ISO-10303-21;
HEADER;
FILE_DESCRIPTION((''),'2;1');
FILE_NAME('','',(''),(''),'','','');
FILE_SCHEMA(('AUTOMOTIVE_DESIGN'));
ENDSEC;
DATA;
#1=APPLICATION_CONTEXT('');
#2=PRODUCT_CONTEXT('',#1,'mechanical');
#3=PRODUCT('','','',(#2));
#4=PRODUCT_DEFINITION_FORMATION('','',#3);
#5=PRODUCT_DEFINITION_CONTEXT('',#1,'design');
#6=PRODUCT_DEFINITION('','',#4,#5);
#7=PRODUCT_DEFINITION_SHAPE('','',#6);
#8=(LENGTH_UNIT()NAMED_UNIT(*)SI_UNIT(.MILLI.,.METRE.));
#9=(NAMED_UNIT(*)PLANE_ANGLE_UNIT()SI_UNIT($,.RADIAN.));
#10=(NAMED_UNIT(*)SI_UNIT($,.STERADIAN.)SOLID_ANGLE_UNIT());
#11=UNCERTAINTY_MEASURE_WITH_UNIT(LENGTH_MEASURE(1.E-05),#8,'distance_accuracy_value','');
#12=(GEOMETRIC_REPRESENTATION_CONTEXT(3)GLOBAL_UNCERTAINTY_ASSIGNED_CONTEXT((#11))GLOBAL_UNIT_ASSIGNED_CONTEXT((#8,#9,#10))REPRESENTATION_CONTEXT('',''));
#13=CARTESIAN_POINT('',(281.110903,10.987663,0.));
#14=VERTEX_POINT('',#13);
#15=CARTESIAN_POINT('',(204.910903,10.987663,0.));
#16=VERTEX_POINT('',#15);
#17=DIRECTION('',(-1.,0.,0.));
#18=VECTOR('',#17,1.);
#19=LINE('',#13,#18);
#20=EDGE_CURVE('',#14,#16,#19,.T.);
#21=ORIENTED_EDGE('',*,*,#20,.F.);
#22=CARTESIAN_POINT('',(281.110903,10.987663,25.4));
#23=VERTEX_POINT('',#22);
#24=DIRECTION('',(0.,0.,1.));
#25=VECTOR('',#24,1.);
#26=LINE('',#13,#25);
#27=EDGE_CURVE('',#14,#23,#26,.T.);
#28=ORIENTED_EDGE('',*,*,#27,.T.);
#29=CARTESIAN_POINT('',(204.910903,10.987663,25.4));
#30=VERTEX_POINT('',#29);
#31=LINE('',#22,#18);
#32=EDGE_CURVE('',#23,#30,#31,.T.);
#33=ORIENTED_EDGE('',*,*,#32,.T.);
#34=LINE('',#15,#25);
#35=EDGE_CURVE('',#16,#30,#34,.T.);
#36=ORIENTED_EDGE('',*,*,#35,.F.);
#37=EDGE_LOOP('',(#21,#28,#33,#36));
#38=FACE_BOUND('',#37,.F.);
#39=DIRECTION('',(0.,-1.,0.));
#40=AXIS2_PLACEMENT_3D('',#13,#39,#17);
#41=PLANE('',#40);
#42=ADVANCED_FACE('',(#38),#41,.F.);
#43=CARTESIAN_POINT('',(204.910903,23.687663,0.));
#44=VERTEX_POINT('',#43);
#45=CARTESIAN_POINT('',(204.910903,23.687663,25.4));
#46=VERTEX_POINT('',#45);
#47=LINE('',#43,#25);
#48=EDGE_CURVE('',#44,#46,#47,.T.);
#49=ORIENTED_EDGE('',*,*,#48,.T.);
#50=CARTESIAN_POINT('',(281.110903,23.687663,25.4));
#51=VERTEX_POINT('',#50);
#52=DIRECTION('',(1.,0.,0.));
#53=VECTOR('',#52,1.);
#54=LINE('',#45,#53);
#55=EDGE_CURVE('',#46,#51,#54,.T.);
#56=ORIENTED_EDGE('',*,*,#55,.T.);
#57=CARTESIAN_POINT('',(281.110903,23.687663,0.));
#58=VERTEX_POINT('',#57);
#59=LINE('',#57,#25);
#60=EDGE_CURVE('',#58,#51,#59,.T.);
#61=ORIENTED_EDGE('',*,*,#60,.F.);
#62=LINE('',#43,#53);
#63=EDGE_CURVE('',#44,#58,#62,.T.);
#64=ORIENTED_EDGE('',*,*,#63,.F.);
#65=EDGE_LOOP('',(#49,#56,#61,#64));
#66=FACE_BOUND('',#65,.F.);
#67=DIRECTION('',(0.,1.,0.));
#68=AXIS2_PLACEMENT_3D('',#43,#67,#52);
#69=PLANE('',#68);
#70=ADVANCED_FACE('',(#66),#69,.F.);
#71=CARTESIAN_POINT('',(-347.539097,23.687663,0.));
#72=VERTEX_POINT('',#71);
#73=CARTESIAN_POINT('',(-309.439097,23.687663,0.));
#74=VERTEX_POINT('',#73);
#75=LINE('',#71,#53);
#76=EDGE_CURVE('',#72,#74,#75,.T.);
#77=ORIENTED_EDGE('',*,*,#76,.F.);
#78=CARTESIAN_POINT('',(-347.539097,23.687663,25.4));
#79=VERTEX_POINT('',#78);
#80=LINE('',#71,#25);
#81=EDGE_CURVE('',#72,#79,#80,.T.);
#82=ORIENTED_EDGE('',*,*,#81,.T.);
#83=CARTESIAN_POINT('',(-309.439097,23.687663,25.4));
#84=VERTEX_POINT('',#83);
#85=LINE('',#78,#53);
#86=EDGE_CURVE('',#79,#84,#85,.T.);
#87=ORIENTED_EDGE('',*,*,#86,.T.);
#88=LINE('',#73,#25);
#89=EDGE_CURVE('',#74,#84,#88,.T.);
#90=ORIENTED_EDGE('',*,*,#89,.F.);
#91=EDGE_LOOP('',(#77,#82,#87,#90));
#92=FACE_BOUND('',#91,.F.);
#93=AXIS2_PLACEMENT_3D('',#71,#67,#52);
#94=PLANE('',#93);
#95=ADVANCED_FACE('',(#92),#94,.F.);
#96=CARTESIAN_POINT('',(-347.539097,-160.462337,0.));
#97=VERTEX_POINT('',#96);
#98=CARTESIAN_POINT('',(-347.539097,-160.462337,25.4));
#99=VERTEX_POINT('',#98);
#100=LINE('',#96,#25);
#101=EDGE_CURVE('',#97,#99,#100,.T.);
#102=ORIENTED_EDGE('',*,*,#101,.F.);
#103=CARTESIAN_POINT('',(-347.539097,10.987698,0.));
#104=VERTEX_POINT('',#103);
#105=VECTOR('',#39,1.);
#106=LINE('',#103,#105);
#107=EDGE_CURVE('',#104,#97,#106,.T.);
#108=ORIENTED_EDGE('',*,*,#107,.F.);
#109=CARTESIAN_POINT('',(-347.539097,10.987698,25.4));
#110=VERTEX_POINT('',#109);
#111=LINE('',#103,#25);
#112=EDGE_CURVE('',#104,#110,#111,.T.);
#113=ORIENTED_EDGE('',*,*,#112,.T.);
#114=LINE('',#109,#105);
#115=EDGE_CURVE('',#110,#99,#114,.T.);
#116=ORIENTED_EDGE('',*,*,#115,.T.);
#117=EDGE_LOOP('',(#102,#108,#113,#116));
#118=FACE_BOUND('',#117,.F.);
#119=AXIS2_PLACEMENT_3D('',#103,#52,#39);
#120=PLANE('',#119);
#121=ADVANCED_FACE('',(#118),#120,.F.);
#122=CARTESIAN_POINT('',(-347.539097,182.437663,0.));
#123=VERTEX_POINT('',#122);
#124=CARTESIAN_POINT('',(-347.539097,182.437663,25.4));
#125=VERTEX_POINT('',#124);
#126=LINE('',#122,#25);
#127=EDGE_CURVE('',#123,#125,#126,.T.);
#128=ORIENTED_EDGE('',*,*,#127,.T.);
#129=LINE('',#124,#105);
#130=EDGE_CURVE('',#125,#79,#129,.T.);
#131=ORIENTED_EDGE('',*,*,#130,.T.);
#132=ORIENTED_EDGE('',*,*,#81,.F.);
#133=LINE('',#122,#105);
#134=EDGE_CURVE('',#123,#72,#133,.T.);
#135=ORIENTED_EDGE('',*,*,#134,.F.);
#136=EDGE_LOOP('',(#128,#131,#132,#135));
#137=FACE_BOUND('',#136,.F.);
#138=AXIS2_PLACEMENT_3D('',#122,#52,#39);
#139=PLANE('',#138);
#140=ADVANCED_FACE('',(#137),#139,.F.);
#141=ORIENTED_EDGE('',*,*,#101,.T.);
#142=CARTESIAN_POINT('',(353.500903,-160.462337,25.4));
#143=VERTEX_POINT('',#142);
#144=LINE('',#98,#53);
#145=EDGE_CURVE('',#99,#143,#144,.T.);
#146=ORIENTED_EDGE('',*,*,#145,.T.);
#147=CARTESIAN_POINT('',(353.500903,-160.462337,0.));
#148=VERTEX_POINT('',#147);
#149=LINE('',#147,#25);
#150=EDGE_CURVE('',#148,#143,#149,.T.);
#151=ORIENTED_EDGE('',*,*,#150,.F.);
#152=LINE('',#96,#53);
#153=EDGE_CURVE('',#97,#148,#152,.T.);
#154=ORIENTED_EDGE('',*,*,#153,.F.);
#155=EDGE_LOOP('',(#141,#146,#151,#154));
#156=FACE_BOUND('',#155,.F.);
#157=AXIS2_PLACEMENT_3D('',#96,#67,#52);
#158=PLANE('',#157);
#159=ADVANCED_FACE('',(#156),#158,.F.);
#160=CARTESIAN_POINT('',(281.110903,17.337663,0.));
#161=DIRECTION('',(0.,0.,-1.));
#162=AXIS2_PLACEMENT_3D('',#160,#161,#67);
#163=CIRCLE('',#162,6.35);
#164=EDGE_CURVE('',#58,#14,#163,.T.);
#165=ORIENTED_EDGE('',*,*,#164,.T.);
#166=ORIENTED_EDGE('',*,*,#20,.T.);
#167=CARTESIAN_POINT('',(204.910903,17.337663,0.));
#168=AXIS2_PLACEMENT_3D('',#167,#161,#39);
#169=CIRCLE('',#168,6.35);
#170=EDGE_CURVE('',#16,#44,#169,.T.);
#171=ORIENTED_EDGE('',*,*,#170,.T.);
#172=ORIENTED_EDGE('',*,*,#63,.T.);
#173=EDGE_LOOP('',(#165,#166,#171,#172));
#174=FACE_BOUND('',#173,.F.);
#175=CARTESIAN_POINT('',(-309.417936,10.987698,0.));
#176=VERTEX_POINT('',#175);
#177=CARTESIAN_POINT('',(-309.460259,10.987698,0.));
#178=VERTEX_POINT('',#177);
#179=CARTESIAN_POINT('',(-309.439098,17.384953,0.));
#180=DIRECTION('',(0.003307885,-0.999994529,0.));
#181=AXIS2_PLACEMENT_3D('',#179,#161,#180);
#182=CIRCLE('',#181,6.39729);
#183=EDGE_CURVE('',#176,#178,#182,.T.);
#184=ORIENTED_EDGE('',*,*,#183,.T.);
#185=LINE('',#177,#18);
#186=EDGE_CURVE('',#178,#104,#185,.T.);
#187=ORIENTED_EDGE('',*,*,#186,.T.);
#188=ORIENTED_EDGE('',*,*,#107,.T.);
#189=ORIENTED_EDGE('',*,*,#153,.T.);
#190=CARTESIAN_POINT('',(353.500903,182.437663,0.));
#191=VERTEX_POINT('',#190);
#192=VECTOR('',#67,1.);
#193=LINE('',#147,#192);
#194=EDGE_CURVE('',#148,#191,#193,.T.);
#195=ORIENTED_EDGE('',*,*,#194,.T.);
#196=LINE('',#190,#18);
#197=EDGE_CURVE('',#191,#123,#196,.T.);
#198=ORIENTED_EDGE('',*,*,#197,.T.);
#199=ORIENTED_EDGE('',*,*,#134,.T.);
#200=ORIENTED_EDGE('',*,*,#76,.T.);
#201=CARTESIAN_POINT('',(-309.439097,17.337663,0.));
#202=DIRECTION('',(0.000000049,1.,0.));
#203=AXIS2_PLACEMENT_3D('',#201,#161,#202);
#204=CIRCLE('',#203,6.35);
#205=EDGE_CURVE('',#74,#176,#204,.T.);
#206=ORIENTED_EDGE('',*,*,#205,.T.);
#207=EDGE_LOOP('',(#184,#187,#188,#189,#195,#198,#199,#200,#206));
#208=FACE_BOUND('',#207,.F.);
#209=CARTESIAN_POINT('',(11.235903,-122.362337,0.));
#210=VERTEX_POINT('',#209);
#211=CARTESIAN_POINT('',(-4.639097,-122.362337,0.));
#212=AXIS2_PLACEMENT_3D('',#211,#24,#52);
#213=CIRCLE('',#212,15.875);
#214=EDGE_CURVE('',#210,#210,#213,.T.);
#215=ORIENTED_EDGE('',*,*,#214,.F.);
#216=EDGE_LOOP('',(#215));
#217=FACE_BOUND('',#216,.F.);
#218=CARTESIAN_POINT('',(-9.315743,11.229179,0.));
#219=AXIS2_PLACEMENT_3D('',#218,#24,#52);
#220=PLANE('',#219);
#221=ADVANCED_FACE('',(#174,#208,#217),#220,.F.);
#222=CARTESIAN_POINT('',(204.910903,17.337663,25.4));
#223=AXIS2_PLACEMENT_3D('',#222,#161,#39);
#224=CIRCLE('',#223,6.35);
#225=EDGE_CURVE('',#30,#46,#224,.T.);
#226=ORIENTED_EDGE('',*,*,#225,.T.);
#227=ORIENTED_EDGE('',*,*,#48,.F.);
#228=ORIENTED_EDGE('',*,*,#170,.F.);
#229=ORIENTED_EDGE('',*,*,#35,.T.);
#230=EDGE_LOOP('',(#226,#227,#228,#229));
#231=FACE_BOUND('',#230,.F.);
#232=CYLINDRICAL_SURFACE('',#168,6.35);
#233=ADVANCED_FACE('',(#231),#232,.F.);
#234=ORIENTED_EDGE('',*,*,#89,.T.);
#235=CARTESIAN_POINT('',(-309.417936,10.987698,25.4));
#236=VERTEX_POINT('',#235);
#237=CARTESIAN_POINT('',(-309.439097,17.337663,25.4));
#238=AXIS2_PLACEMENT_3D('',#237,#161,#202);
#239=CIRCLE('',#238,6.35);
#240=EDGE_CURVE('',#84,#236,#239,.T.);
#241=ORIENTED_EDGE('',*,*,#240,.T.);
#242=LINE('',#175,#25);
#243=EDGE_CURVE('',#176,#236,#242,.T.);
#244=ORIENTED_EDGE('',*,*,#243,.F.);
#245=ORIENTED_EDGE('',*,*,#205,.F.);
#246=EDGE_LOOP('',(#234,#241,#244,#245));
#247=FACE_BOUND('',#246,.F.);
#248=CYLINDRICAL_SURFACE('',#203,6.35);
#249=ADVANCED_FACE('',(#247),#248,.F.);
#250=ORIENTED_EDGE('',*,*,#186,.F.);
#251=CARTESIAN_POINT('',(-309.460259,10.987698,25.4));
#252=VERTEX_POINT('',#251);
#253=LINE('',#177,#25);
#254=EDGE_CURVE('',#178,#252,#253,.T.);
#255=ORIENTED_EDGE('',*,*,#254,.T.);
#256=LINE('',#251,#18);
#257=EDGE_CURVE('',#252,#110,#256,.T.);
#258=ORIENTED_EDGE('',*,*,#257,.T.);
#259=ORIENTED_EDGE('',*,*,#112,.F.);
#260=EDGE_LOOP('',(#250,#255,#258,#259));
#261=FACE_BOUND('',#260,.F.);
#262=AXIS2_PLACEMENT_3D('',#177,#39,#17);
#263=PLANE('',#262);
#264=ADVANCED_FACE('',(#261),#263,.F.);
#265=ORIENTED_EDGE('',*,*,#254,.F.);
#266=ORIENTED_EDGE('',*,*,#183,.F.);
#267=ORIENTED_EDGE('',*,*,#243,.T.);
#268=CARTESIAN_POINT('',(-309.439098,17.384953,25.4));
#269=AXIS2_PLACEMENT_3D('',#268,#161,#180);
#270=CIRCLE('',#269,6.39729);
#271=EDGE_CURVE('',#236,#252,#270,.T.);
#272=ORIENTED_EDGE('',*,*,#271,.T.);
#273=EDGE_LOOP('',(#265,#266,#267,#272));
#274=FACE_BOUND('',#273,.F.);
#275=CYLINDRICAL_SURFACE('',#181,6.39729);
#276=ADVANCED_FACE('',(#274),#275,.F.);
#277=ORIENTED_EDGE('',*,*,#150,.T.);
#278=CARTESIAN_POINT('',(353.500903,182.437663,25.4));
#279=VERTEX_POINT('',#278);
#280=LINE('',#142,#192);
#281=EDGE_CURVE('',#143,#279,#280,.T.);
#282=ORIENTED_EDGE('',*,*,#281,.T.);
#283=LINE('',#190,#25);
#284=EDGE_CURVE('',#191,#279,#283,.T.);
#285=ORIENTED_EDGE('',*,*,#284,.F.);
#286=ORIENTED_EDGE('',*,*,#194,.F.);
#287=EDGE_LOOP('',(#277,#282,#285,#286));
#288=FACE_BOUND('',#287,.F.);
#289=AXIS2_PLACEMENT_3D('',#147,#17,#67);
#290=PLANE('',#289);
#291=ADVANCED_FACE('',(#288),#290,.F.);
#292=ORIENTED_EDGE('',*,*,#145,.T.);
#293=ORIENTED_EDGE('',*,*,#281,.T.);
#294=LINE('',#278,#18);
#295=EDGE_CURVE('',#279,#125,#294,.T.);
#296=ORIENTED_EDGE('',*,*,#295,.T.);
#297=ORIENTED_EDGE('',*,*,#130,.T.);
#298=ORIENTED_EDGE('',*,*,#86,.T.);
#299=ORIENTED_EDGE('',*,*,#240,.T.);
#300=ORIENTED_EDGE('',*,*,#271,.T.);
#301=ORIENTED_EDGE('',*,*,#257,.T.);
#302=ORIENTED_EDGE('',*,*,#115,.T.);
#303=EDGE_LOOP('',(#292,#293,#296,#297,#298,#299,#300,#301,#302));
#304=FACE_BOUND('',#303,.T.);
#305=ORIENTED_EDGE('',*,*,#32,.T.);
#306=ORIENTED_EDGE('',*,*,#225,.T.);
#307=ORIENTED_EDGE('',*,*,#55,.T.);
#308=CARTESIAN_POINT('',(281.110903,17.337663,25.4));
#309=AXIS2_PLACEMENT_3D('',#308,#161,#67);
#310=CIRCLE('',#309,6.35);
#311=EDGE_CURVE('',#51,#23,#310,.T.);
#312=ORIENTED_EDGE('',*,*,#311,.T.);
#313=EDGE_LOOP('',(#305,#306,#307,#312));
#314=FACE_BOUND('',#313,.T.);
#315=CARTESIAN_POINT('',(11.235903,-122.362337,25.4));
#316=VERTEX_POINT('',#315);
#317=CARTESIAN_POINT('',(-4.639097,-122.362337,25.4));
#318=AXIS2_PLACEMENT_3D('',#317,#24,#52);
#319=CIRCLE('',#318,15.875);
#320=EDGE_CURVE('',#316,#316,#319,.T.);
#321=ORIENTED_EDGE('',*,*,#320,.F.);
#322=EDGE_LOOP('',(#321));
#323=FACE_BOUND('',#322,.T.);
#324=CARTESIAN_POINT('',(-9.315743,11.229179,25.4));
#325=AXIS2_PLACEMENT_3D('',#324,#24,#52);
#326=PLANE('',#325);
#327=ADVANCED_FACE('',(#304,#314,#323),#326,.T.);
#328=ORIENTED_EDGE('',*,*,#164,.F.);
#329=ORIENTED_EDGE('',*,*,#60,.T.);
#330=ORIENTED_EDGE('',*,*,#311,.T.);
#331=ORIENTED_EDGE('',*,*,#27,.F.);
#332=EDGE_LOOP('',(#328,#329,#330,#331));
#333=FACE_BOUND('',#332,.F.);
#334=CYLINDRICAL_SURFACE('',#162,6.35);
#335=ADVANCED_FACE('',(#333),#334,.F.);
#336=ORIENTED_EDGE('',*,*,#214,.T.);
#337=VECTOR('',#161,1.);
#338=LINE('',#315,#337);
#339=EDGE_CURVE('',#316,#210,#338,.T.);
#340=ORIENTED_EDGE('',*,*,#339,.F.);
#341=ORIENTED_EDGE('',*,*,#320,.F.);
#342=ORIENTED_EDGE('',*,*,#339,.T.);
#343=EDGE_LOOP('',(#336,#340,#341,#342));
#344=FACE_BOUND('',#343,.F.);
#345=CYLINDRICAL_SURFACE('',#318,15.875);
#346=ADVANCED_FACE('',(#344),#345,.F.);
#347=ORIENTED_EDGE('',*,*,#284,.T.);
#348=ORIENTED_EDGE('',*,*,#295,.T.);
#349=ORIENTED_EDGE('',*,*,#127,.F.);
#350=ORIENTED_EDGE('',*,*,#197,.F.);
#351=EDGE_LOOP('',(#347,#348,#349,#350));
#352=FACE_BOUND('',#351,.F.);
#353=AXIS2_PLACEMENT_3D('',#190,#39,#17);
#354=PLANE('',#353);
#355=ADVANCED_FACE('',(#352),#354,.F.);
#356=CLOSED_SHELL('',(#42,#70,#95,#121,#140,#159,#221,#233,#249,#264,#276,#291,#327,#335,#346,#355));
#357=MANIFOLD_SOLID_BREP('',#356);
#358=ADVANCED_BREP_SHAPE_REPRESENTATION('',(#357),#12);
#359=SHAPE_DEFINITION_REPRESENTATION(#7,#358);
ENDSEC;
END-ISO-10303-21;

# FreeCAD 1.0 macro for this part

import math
import FreeCAD as App
import Part
import Sketcher
from FreeCAD import Vector
Q = App.Units.Quantity

doc = App.newDocument("Part")
params = doc.addObject("Spreadsheet::Sheet", "Params")
for row, (alias, value) in enumerate([
    ("sketch1_width", "3 in"),
    ("sketch1_radius", "0.25 in"),
    ("sketch1_width2", "27.6 in"),
    ("sketch1_width3", "1.5 in"),
    ("sketch1_height", "13.5 in"),
    ("pad1_length", "1 in"),
    ("sketch2_diameter", "1.25 in"),
], start=1):
    params.set(f"A{row}", alias)
    params.set(f"B{row}", "=" + value)
    params.setAlias(f"B{row}", alias)

body = doc.addObject("PartDesign::Body", "Body")

# Sketch on XY plane
sketch1 = doc.addObject("Sketcher::SketchObject", "Sketch")
body.addObject(sketch1)
sketch1.AttachmentSupport = (doc.XY_Plane, [""])
sketch1.MapMode = "FlatFace"
sketch1.addGeometry([
    Part.LineSegment(Vector(353.501, 182.438, 0), Vector(-347.539, 182.438, 0)),  # 0
    Part.LineSegment(Vector(-347.539, 182.438, 0), Vector(-347.539, 23.688, 0)),  # 1
    Part.LineSegment(Vector(-347.539, 23.688, 0), Vector(-309.439, 23.688, 0)),  # 2
    Part.ArcOfCircle(Part.Circle(Vector(-309.439, 17.338, 0), Vector(0, 0, 1), 6.35), math.radians(-90), math.radians(90)),  # 3
    Part.ArcOfCircle(Part.Circle(Vector(-309.439, 17.385, 0), Vector(0, 0, 1), 6.397), math.radians(-90.19), math.radians(-89.81)),  # 4
    Part.LineSegment(Vector(-309.46, 10.988, 0), Vector(-347.539, 10.988, 0)),  # 5
    Part.LineSegment(Vector(-347.539, 10.988, 0), Vector(-347.539, -160.462, 0)),  # 6
    Part.LineSegment(Vector(-347.539, -160.462, 0), Vector(353.501, -160.462, 0)),  # 7
    Part.LineSegment(Vector(353.501, -160.462, 0), Vector(353.501, 182.438, 0)),  # 8
    Part.LineSegment(Vector(281.111, 10.988, 0), Vector(204.911, 10.988, 0)),  # 9
    Part.ArcOfCircle(Part.Circle(Vector(204.911, 17.338, 0), Vector(0, 0, 1), 6.35), math.radians(90), math.radians(270)),  # 10
    Part.LineSegment(Vector(204.911, 23.688, 0), Vector(281.111, 23.688, 0)),  # 11
    Part.ArcOfCircle(Part.Circle(Vector(281.111, 17.338, 0), Vector(0, 0, 1), 6.35), math.radians(-90), math.radians(90)),  # 12
], False)
sketch1.addConstraint([
    Sketcher.Constraint("Coincident", 0, 2, 1, 1),
    Sketcher.Constraint("Coincident", 1, 2, 2, 1),
    Sketcher.Constraint("Tangent", 2, 2, 3, 2),
    Sketcher.Constraint("Coincident", 3, 1, 4, 2),
    Sketcher.Constraint("Coincident", 4, 1, 5, 1),
    Sketcher.Constraint("Coincident", 5, 2, 6, 1),
    Sketcher.Constraint("Coincident", 6, 2, 7, 1),
    Sketcher.Constraint("Coincident", 7, 2, 8, 1),
    Sketcher.Constraint("Coincident", 8, 2, 0, 1),
    Sketcher.Constraint("Tangent", 9, 2, 10, 2),
    Sketcher.Constraint("Tangent", 10, 1, 11, 1),
    Sketcher.Constraint("Tangent", 11, 2, 12, 2),
    Sketcher.Constraint("Tangent", 12, 1, 9, 1),
    Sketcher.Constraint("Horizontal", 0),
    Sketcher.Constraint("Vertical", 1),
    Sketcher.Constraint("Horizontal", 2),
    Sketcher.Constraint("Horizontal", 5),
    Sketcher.Constraint("Vertical", 6),
    Sketcher.Constraint("Horizontal", 7),
    Sketcher.Constraint("Vertical", 8),
    Sketcher.Constraint("Horizontal", 9),
    Sketcher.Constraint("Horizontal", 11),
    Sketcher.Constraint("Equal", 3, 10),
    Sketcher.Constraint("Horizontal", 3, 3, 10, 3),
    Sketcher.Constraint("Horizontal", 3, 1, 4, 1),
    Sketcher.Constraint("Vertical", 3, 3, 4, 3),
    Sketcher.Constraint("Vertical", 1, 2, 5, 2),
    Sketcher.Constraint("DistanceX", 9, 2, 9, 1, Q("3 in")),
    Sketcher.Constraint("Radius", 3, Q("0.25 in")),
    Sketcher.Constraint("DistanceX", 0, 2, 0, 1, Q("27.6 in")),
    Sketcher.Constraint("DistanceX", 2, 1, 2, 2, Q("1.5 in")),
    Sketcher.Constraint("DistanceY", 8, 1, 8, 2, Q("13.5 in")),
    Sketcher.Constraint("DistanceY", 6, 2, 3, 3, Q("7 in")),
    Sketcher.Constraint("DistanceX", 3, 3, 10, 3, Q("20.25 in")),
    Sketcher.Constraint("Radius", 4, 6.39729),
    Sketcher.Constraint("DistanceX", 5, 2, 5, 1, 38.078838),
    Sketcher.Constraint("DistanceY", -1, 1, 3, 1, 10.987698),
    Sketcher.Constraint("DistanceX", 4, 1, -1, 1, 309.460259),
])
sketch1.setExpression("Constraints[27]", "Params.sketch1_width")
sketch1.setExpression("Constraints[28]", "Params.sketch1_radius")
sketch1.setExpression("Constraints[29]", "Params.sketch1_width2")
sketch1.setExpression("Constraints[30]", "Params.sketch1_width3")
sketch1.setExpression("Constraints[31]", "Params.sketch1_height")
pad1 = doc.addObject("PartDesign::Pad", "Pad")
body.addObject(pad1)
pad1.Profile = sketch1
pad1.setExpression("Length", "Params.pad1_length")

# Sketch on XY plane
sketch2 = doc.addObject("Sketcher::SketchObject", "Sketch001")
body.addObject(sketch2)
sketch2.AttachmentSupport = (doc.XY_Plane, [""])
sketch2.MapMode = "FlatFace"
sketch2.AttachmentOffset = App.Placement(Vector(0, 0, 1 * 25.4), App.Rotation())
sketch2.addGeometry(Part.Circle(Vector(-5, -122, 0), Vector(0, 0, 1), 16), False)
sketch2.addConstraint([
    Sketcher.Constraint("Diameter", 0, Q("1.25 in")),
    Sketcher.Constraint("DistanceX", 0, 3, -1, 1, 4.639097),
    Sketcher.Constraint("DistanceY", 0, 3, -1, 1, 122.362337),
])
sketch2.setExpression("Constraints[0]", "Params.sketch2_diameter")
pocket1 = doc.addObject("PartDesign::Pocket", "Pocket")
body.addObject(pocket1)
pocket1.Profile = sketch2
pocket1.Type = "ThroughAll"

doc.recompute()
